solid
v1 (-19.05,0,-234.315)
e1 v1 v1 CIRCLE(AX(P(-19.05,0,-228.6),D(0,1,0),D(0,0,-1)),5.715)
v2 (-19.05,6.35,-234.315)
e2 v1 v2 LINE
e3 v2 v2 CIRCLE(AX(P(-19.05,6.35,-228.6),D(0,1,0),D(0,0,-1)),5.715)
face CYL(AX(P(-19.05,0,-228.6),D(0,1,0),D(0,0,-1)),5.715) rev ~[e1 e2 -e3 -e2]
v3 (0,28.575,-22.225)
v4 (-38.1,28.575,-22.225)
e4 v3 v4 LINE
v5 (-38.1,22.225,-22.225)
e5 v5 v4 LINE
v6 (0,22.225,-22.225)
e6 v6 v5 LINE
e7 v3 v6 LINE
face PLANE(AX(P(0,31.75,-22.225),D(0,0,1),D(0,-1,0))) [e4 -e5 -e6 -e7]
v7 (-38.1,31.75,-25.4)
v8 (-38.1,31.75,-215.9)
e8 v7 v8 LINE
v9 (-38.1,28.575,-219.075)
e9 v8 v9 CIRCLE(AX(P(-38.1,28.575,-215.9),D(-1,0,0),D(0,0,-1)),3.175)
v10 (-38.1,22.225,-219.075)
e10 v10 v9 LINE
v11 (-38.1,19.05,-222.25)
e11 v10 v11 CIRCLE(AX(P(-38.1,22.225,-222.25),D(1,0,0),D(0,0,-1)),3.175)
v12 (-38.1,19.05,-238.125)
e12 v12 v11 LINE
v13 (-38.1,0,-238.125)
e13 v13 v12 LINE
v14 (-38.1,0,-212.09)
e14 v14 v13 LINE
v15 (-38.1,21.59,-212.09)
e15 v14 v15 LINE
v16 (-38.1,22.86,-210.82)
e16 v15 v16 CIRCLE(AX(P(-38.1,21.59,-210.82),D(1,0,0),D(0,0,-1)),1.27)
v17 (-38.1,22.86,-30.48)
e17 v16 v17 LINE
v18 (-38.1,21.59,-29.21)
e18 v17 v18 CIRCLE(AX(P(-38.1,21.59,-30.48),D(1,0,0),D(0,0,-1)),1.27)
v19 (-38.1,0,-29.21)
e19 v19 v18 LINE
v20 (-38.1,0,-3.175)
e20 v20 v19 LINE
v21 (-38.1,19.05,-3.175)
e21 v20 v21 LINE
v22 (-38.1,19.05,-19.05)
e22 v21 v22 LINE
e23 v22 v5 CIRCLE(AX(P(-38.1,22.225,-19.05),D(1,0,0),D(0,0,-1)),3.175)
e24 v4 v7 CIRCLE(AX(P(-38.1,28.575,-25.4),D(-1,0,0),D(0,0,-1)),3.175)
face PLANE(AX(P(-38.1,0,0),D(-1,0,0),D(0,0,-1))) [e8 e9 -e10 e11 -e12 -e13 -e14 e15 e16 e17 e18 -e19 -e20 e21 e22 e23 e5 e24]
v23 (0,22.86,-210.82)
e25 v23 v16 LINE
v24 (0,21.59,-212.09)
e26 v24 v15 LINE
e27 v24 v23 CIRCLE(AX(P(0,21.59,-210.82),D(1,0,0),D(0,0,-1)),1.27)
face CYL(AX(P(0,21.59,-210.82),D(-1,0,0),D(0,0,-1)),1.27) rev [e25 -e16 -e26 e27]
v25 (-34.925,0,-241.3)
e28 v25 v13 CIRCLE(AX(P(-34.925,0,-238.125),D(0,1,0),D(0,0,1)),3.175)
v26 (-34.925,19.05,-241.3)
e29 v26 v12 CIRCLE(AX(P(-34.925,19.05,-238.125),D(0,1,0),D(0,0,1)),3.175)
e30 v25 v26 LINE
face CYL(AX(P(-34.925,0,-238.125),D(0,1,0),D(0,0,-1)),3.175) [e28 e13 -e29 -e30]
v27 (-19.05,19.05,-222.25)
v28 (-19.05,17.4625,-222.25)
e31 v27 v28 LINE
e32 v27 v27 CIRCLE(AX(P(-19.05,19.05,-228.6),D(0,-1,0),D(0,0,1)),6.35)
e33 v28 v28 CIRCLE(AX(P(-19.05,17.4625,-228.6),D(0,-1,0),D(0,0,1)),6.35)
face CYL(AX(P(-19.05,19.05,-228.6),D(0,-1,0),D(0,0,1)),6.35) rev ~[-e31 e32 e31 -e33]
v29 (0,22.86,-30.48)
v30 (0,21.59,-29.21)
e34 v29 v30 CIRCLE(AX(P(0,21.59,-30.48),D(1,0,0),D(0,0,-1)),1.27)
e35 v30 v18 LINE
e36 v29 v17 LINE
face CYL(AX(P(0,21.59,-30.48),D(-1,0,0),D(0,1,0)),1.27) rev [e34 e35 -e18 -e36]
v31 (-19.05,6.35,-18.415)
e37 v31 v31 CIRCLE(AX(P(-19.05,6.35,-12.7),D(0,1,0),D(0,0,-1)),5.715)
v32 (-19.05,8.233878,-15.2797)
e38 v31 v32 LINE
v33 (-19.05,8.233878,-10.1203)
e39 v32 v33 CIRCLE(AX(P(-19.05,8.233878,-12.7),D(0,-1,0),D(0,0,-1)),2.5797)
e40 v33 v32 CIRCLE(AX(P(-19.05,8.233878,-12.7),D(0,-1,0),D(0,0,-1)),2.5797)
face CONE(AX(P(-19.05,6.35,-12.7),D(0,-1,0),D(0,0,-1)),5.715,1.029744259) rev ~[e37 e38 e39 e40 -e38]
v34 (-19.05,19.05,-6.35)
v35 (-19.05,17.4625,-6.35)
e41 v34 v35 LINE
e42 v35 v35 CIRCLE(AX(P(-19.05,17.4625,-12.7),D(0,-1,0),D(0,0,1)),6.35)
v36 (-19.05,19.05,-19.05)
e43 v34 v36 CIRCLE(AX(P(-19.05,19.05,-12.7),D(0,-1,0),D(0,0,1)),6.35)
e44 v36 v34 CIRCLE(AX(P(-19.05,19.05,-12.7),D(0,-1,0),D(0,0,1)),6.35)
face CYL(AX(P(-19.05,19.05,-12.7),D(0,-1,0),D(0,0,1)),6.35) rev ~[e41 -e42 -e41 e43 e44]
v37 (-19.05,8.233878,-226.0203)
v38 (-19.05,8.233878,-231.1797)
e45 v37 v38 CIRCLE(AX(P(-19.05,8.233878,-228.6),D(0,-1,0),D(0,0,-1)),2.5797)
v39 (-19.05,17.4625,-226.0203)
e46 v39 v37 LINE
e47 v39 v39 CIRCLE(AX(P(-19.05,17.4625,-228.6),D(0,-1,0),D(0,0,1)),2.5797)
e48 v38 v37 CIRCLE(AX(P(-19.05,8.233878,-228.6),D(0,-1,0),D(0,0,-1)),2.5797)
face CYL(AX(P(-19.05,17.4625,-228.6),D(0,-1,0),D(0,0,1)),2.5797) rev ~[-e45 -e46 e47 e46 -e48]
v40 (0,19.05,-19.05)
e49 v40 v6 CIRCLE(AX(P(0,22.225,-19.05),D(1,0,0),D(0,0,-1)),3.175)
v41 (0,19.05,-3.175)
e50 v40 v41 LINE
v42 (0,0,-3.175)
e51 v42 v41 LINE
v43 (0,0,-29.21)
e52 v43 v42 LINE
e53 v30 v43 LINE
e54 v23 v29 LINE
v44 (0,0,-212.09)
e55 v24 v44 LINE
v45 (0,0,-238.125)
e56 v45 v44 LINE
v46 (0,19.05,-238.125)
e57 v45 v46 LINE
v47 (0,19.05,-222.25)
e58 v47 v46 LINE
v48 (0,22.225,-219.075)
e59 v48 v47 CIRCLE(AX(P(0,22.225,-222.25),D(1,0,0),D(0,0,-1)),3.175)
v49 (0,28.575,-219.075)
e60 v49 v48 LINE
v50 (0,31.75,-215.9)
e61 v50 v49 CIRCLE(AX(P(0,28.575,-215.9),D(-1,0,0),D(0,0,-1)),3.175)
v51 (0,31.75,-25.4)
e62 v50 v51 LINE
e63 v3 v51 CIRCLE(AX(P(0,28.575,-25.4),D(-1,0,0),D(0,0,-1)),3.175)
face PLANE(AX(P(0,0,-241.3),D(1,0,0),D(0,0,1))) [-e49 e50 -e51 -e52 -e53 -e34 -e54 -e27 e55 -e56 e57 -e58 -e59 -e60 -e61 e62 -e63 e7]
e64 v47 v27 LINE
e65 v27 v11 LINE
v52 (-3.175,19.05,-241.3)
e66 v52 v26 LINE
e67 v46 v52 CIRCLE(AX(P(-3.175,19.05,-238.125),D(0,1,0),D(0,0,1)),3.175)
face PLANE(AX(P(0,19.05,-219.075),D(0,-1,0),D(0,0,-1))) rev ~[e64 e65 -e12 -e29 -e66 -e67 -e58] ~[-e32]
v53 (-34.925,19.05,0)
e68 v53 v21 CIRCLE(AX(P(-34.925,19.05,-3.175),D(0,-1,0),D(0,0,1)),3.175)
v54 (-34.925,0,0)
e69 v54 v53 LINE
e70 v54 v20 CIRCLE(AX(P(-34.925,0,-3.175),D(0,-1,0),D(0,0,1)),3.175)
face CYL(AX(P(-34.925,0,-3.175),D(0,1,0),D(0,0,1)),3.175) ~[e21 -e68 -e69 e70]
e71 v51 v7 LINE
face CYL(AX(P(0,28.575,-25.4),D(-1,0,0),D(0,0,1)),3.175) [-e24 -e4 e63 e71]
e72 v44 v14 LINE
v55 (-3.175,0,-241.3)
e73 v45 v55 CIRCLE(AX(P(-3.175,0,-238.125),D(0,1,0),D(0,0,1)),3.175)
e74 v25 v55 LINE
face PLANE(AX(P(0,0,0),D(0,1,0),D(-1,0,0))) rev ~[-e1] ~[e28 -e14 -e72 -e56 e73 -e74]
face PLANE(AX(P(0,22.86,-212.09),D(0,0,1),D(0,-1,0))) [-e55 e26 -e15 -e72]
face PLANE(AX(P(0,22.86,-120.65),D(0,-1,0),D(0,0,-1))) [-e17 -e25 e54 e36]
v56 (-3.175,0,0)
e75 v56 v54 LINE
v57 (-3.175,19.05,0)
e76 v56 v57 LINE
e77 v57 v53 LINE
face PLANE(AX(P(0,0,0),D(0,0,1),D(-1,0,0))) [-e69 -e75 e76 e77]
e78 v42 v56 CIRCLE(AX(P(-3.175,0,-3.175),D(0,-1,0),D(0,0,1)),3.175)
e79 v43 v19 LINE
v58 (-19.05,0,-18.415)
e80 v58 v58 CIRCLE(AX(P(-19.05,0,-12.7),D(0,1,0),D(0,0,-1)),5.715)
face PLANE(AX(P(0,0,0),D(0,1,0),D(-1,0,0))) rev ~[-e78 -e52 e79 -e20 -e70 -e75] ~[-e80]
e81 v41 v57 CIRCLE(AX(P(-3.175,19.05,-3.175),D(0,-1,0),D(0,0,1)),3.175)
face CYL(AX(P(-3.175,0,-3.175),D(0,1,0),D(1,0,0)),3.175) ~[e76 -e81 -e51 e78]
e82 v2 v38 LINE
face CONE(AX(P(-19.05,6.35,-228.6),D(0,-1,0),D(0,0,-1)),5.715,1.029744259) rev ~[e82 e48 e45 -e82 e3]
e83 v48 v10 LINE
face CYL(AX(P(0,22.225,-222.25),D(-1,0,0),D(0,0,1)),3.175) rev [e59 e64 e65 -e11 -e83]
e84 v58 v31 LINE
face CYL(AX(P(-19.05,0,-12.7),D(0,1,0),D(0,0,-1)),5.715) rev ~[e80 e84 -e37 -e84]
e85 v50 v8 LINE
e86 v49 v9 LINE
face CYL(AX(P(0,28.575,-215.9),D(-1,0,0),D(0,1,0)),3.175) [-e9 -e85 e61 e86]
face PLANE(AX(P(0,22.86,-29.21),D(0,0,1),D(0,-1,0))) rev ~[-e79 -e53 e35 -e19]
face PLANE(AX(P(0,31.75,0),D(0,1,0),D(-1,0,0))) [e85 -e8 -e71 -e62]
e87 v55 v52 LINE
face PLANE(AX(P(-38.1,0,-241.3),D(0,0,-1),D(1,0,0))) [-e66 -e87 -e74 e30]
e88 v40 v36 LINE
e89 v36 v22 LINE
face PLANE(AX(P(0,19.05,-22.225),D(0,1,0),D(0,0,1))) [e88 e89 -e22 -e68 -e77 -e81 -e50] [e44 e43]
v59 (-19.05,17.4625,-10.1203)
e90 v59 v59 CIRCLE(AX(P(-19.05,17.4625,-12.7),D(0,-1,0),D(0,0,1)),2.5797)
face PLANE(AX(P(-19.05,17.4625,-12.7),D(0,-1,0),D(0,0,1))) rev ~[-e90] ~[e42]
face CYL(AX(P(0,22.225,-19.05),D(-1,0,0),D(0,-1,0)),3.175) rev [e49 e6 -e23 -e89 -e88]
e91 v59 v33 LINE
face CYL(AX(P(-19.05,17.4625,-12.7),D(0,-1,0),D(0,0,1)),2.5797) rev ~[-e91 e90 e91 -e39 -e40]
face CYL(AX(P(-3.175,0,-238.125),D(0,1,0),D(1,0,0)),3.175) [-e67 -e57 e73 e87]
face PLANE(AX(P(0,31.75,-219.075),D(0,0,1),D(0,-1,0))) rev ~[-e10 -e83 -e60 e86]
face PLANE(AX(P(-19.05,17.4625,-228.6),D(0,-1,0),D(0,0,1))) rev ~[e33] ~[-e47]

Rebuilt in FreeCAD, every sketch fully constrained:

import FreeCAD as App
import Part
import Sketcher

V = App.Vector
Q = App.Units.Quantity


def edges_at(feature, points):
    """Names of the edges that pass closest to the given points."""
    edges = feature.Shape.Edges
    near = lambda p: min(range(len(edges)), key=lambda i: edges[i].distToShape(Part.Vertex(*p))[0])
    return sorted({f"Edge{near(p) + 1}" for p in points})


def add_polygon(sketch, points):
    """Adds a closed chain of lines whose ends are joined by coincident constraints."""
    first, n = sketch.GeometryCount, len(points)
    for a, b in zip(points, points[1:] + points[:1]):
        sketch.addGeometry(Part.LineSegment(App.Vector(*a, 0), App.Vector(*b, 0)), False)
    for i in range(n):
        sketch.addConstraint(Sketcher.Constraint("Coincident", first + i, 2, first + (i + 1) % n, 1))

doc = App.newDocument("Part")
body = doc.addObject("PartDesign::Body", "Body")

sketch1 = doc.addObject("Sketcher::SketchObject", "Sketch")
body.addObject(sketch1)
sketch1.AttachmentSupport = (doc.XZ_Plane, [""])
sketch1.MapMode = "FlatFace"
add_polygon(sketch1, [(-38, 0), (0, 0), (0, -241), (-38, -241)])
sketch1.addConstraint([
    Sketcher.Constraint("Horizontal", 0),
    Sketcher.Constraint("Vertical", 1),
    Sketcher.Constraint("Horizontal", 2),
    Sketcher.Constraint("Vertical", 3),
    Sketcher.Constraint("Coincident", 0, 2, -1, 1),
    Sketcher.Constraint("DistanceX", 0, 1, 0, 2, Q("1.5 in")),
    Sketcher.Constraint("DistanceY", 1, 2, 1, 1, Q("9.5 in")),
])
pad1 = doc.addObject("PartDesign::Pad", "Pad")
body.addObject(pad1)
pad1.Profile = sketch1
pad1.Length = Q("1.25 in")
pad1.Reversed = True

sketch2 = doc.addObject("Sketcher::SketchObject", "Sketch001")
body.addObject(sketch2)
sketch2.AttachmentSupport = (doc.YZ_Plane, [""])
sketch2.MapMode = "FlatFace"
add_polygon(sketch2, [(0, -212), (23, -212), (23, -29), (0, -29)])
sketch2.addConstraint([
    Sketcher.Constraint("Horizontal", 0),
    Sketcher.Constraint("Vertical", 1),
    Sketcher.Constraint("Horizontal", 2),
    Sketcher.Constraint("Vertical", 3),
    Sketcher.Constraint("PointOnObject", 2, 2, -2),
    Sketcher.Constraint("DistanceX", 0, 1, 0, 2, Q("0.9 in")),
    Sketcher.Constraint("DistanceY", 1, 1, 1, 2, Q("7.2 in")),
    Sketcher.Constraint("DistanceY", 0, 2, -1, 1, Q("8.35 in")),
])
pocket1 = doc.addObject("PartDesign::Pocket", "Pocket")
body.addObject(pocket1)
pocket1.Profile = sketch2
pocket1.Type = "ThroughAll"
doc.recompute()

fillet = doc.addObject("PartDesign::Fillet", "Fillet")
body.addObject(fillet)
fillet.Base = (pocket1, edges_at(pocket1, [(-19.05, 22.86, -212.09), (-19.05, 22.86, -29.21)]))
fillet.Radius = Q("0.05 in")

sketch3 = doc.addObject("Sketcher::SketchObject", "Sketch002")
body.addObject(sketch3)
sketch3.AttachmentSupport = (doc.YZ_Plane, [""])
sketch3.MapMode = "FlatFace"
add_polygon(sketch3, [(19, -241), (32, -241), (32, -219), (19, -219)])
add_polygon(sketch3, [(32, 0), (19, 0), (19, -22), (32, -22)])
sketch3.addConstraint([
    Sketcher.Constraint("Horizontal", 0),
    Sketcher.Constraint("Vertical", 1),
    Sketcher.Constraint("Horizontal", 2),
    Sketcher.Constraint("Vertical", 3),
    Sketcher.Constraint("Horizontal", 4),
    Sketcher.Constraint("Vertical", 5),
    Sketcher.Constraint("Horizontal", 6),
    Sketcher.Constraint("Vertical", 7),
    Sketcher.Constraint("PointOnObject", 4, 2, -1),
    Sketcher.Constraint("Vertical", 3, 2, 4, 2),
    Sketcher.Constraint("Vertical", 1, 2, 6, 2),
    Sketcher.Constraint("Equal", 3, 5),
    Sketcher.Constraint("DistanceX", 0, 1, 0, 2, Q("0.5 in")),
    Sketcher.Constraint("DistanceY", 1, 1, 1, 2, Q("0.875 in")),
    Sketcher.Constraint("DistanceY", 0, 2, -1, 1, Q("9.5 in")),
    Sketcher.Constraint("DistanceX", -1, 1, 0, 2, Q("1.25 in")),
])
pocket2 = doc.addObject("PartDesign::Pocket", "Pocket001")
body.addObject(pocket2)
pocket2.Profile = sketch3
pocket2.Type = "ThroughAll"
doc.recompute()

fillet2 = doc.addObject("PartDesign::Fillet", "Fillet001")
body.addObject(fillet2)
fillet2.Base = (pocket2, edges_at(pocket2, [
    (-19.05, 19.05, -219.075),
    (-19.05, 31.75, -219.075),
    (-19.05, 31.75, -22.225),
    (-19.05, 19.05, -22.225),
]))
fillet2.Radius = Q("0.125 in")

sketch4 = doc.addObject("Sketcher::SketchObject", "Sketch003")
body.addObject(sketch4)
sketch4.AttachmentSupport = (doc.XZ_Plane, [""])
sketch4.MapMode = "FlatFace"
sketch4.AttachmentOffset = App.Placement(V(0, 0, -0.75 * 25.4), App.Rotation())
sketch4.addGeometry(Part.Circle(V(-19.1, -228.6, 0), V(0, 0, 1), 2.6), False)
sketch4.addConstraint([
    Sketcher.Constraint("Diameter", 0, Q("0.203126 in")),
    Sketcher.Constraint("DistanceY", 0, 3, -1, 1, Q("9 in")),
    Sketcher.Constraint("DistanceX", 0, 3, -1, 1, Q("0.75 in")),
])
doc.recompute()
hole = doc.addObject("PartDesign::Hole", "Hole")
body.addObject(hole)
hole.Profile = sketch4
hole.ThreadType = "None"
hole.Diameter = Q("0.203126 in")
hole.DepthType = "ThroughAll"
hole.HoleCutType = "Counterbore"
hole.HoleCutDiameter = Q("0.5 in")
hole.HoleCutDepth = Q("0.0625 in")
hole.Reversed = True

sketch5 = doc.addObject("Sketcher::SketchObject", "Sketch004")
body.addObject(sketch5)
sketch5.AttachmentSupport = (doc.XZ_Plane, [""])
sketch5.MapMode = "FlatFace"
sketch5.AttachmentOffset = App.Placement(V(0, 0, -0.75 * 25.4), App.Rotation())
sketch5.addGeometry(Part.Circle(V(-19.1, -12.7, 0), V(0, 0, 1), 2.6), False)
sketch5.addConstraint([
    Sketcher.Constraint("Diameter", 0, Q("0.203126 in")),
    Sketcher.Constraint("DistanceY", 0, 3, -1, 1, Q("0.5 in")),
    Sketcher.Constraint("DistanceX", 0, 3, -1, 1, Q("0.75 in")),
])
doc.recompute()
hole2 = doc.addObject("PartDesign::Hole", "Hole001")
body.addObject(hole2)
hole2.Profile = sketch5
hole2.ThreadType = "None"
hole2.Diameter = Q("0.203126 in")
hole2.DepthType = "ThroughAll"
hole2.HoleCutType = "Counterbore"
hole2.HoleCutDiameter = Q("0.5 in")
hole2.HoleCutDepth = Q("0.0625 in")
hole2.Reversed = True
doc.recompute()

fillet3 = doc.addObject("PartDesign::Fillet", "Fillet002")
body.addObject(fillet3)
fillet3.Base = (hole2, edges_at(hole2, [
    (0, 9.525, 0),
    (-38.1, 9.525, 0),
    (0, 9.525, -241.3),
    (-38.1, 9.525, -241.3),
]))
fillet3.Radius = Q("0.125 in")

sketch6 = doc.addObject("Sketcher::SketchObject", "Sketch005")
body.addObject(sketch6)
sketch6.AttachmentSupport = (doc.XZ_Plane, [""])
sketch6.MapMode = "FlatFace"
sketch6.addGeometry(Part.Circle(V(-19, -229, 0), V(0, 0, 1), 6), False)
sketch6.addConstraint([
    Sketcher.Constraint("Diameter", 0, Q("0.45 in")),
    Sketcher.Constraint("DistanceY", 0, 3, -1, 1, Q("9 in")),
    Sketcher.Constraint("DistanceX", 0, 3, -1, 1, Q("0.75 in")),
])
doc.recompute()
hole3 = doc.addObject("PartDesign::Hole", "Hole002")
body.addObject(hole3)
hole3.Profile = sketch6
hole3.ThreadType = "None"
hole3.Diameter = Q("0.45 in")
hole3.DepthType = "Dimension"
hole3.Depth = Q("0.25 in")
hole3.DrillPoint = "Angled"
hole3.DrillPointAngle = 118

sketch7 = doc.addObject("Sketcher::SketchObject", "Sketch006")
body.addObject(sketch7)
sketch7.AttachmentSupport = (doc.XZ_Plane, [""])
sketch7.MapMode = "FlatFace"
sketch7.addGeometry(Part.Circle(V(-19, -13, 0), V(0, 0, 1), 6), False)
sketch7.addConstraint([
    Sketcher.Constraint("Diameter", 0, Q("0.45 in")),
    Sketcher.Constraint("DistanceY", 0, 3, -1, 1, Q("0.5 in")),
    Sketcher.Constraint("DistanceX", 0, 3, -1, 1, Q("0.75 in")),
])
doc.recompute()
hole4 = doc.addObject("PartDesign::Hole", "Hole003")
body.addObject(hole4)
hole4.Profile = sketch7
hole4.ThreadType = "None"
hole4.Diameter = Q("0.45 in")
hole4.DepthType = "Dimension"
hole4.Depth = Q("0.25 in")
hole4.DrillPoint = "Angled"
hole4.DrillPointAngle = 118

doc.recompute()
